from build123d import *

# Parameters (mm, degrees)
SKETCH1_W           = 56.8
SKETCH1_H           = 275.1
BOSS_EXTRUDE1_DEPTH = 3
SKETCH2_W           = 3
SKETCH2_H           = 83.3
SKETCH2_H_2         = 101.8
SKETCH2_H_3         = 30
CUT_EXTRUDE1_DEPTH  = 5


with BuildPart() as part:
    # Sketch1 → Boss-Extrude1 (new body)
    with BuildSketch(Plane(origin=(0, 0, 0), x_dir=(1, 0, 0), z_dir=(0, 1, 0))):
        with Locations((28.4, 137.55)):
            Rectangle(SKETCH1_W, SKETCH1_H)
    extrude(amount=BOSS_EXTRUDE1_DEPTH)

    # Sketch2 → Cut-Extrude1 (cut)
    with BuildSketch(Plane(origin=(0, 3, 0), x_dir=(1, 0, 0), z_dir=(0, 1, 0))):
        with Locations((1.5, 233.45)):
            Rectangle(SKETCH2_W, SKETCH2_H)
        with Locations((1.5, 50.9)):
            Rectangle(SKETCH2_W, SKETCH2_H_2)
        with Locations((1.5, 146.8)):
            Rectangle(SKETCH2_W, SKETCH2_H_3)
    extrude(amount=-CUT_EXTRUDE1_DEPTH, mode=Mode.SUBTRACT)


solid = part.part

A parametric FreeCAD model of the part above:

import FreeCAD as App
import Part
import Sketcher
from FreeCAD import Vector
Q = App.Units.Quantity

doc = App.newDocument("Part")
body = doc.addObject("PartDesign::Body", "Body")

sketch1 = doc.addObject("Sketcher::SketchObject", "Sketch")
body.addObject(sketch1)
sketch1.AttachmentSupport = (doc.XZ_Plane, [""])
sketch1.MapMode = "FlatFace"
sketch1.addGeometry([
    Part.LineSegment(Vector(0, -275.1, 0), Vector(0, 0, 0)),
    Part.LineSegment(Vector(0, 0, 0), Vector(56.8, 0, 0)),
    Part.LineSegment(Vector(56.8, 0, 0), Vector(56.8, -275.1, 0)),
    Part.LineSegment(Vector(56.8, -275.1, 0), Vector(0, -275.1, 0)),
], False)
sketch1.addConstraint([
    Sketcher.Constraint("Coincident", 0, 2, 1, 1),
    Sketcher.Constraint("Coincident", 1, 2, 2, 1),
    Sketcher.Constraint("Coincident", 2, 2, 3, 1),
    Sketcher.Constraint("Coincident", 3, 2, 0, 1),
    Sketcher.Constraint("Vertical", 0),
    Sketcher.Constraint("Horizontal", 1),
    Sketcher.Constraint("Vertical", 2),
    Sketcher.Constraint("Horizontal", 3),
    Sketcher.Constraint("Coincident", 0, 2, -1, 1),
    Sketcher.Constraint("DistanceX", 1, 1, 1, 2, Q("56.8 mm")),
    Sketcher.Constraint("DistanceY", 0, 1, 0, 2, Q("275.1 mm")),
])
pad1 = doc.addObject("PartDesign::Pad", "Pad")
body.addObject(pad1)
pad1.Profile = sketch1
pad1.Length = 3
pad1.Reversed = True

sketch2 = doc.addObject("Sketcher::SketchObject", "Sketch001")
body.addObject(sketch2)
sketch2.AttachmentSupport = (doc.XZ_Plane, [""])
sketch2.MapMode = "FlatFace"
sketch2.AttachmentOffset = App.Placement(Vector(0, 0, -3), App.Rotation())
sketch2.addGeometry([
    Part.LineSegment(Vector(0, -275.1, 0), Vector(0, -191.8, 0)),
    Part.LineSegment(Vector(0, -191.8, 0), Vector(3, -191.8, 0)),
    Part.LineSegment(Vector(3, -191.8, 0), Vector(3, -275.1, 0)),
    Part.LineSegment(Vector(3, -275.1, 0), Vector(0, -275.1, 0)),
    Part.LineSegment(Vector(0, -101.8, 0), Vector(0, 0, 0)),
    Part.LineSegment(Vector(0, 0, 0), Vector(3, 0, 0)),
    Part.LineSegment(Vector(3, 0, 0), Vector(3, -101.8, 0)),
    Part.LineSegment(Vector(3, -101.8, 0), Vector(0, -101.8, 0)),
    Part.LineSegment(Vector(0, -161.8, 0), Vector(0, -131.8, 0)),
    Part.LineSegment(Vector(0, -131.8, 0), Vector(3, -131.8, 0)),
    Part.LineSegment(Vector(3, -131.8, 0), Vector(3, -161.8, 0)),
    Part.LineSegment(Vector(3, -161.8, 0), Vector(0, -161.8, 0)),
], False)
sketch2.addConstraint([
    Sketcher.Constraint("Coincident", 0, 2, 1, 1),
    Sketcher.Constraint("Coincident", 1, 2, 2, 1),
    Sketcher.Constraint("Coincident", 2, 2, 3, 1),
    Sketcher.Constraint("Coincident", 3, 2, 0, 1),
    Sketcher.Constraint("Coincident", 4, 2, 5, 1),
    Sketcher.Constraint("Coincident", 5, 2, 6, 1),
    Sketcher.Constraint("Coincident", 6, 2, 7, 1),
    Sketcher.Constraint("Coincident", 7, 2, 4, 1),
    Sketcher.Constraint("Coincident", 8, 2, 9, 1),
    Sketcher.Constraint("Coincident", 9, 2, 10, 1),
    Sketcher.Constraint("Coincident", 10, 2, 11, 1),
    Sketcher.Constraint("Coincident", 11, 2, 8, 1),
    Sketcher.Constraint("Vertical", 0),
    Sketcher.Constraint("Horizontal", 1),
    Sketcher.Constraint("Vertical", 2),
    Sketcher.Constraint("Horizontal", 3),
    Sketcher.Constraint("Vertical", 4),
    Sketcher.Constraint("Horizontal", 5),
    Sketcher.Constraint("Vertical", 6),
    Sketcher.Constraint("Horizontal", 7),
    Sketcher.Constraint("Vertical", 8),
    Sketcher.Constraint("Horizontal", 9),
    Sketcher.Constraint("Vertical", 10),
    Sketcher.Constraint("Horizontal", 11),
    Sketcher.Constraint("Coincident", 4, 2, -1, 1),
    Sketcher.Constraint("PointOnObject", 0, 2, -2),
    Sketcher.Constraint("PointOnObject", 8, 2, -2),
    Sketcher.Constraint("Vertical", 2, 2, 5, 2),
    Sketcher.Constraint("Vertical", 6, 2, 9, 2),
    Sketcher.Constraint("DistanceX", 1, 1, 1, 2, Q("3 mm")),
    Sketcher.Constraint("DistanceY", 8, 1, 8, 2, Q("30 mm")),
    Sketcher.Constraint("DistanceY", 0, 1, 0, 2, Q("83.3 mm")),
    Sketcher.Constraint("DistanceY", 4, 1, 4, 2, Q("101.8 mm")),
    Sketcher.Constraint("DistanceY", 1, 2, 6, 2, Q("90 mm")),
    Sketcher.Constraint("DistanceY", 8, 2, 7, 2, Q("30 mm")),
])
pocket1 = doc.addObject("PartDesign::Pocket", "Pocket")
body.addObject(pocket1)
pocket1.Profile = sketch2
pocket1.Length = 5
pocket1.Reversed = True

doc.recompute()
